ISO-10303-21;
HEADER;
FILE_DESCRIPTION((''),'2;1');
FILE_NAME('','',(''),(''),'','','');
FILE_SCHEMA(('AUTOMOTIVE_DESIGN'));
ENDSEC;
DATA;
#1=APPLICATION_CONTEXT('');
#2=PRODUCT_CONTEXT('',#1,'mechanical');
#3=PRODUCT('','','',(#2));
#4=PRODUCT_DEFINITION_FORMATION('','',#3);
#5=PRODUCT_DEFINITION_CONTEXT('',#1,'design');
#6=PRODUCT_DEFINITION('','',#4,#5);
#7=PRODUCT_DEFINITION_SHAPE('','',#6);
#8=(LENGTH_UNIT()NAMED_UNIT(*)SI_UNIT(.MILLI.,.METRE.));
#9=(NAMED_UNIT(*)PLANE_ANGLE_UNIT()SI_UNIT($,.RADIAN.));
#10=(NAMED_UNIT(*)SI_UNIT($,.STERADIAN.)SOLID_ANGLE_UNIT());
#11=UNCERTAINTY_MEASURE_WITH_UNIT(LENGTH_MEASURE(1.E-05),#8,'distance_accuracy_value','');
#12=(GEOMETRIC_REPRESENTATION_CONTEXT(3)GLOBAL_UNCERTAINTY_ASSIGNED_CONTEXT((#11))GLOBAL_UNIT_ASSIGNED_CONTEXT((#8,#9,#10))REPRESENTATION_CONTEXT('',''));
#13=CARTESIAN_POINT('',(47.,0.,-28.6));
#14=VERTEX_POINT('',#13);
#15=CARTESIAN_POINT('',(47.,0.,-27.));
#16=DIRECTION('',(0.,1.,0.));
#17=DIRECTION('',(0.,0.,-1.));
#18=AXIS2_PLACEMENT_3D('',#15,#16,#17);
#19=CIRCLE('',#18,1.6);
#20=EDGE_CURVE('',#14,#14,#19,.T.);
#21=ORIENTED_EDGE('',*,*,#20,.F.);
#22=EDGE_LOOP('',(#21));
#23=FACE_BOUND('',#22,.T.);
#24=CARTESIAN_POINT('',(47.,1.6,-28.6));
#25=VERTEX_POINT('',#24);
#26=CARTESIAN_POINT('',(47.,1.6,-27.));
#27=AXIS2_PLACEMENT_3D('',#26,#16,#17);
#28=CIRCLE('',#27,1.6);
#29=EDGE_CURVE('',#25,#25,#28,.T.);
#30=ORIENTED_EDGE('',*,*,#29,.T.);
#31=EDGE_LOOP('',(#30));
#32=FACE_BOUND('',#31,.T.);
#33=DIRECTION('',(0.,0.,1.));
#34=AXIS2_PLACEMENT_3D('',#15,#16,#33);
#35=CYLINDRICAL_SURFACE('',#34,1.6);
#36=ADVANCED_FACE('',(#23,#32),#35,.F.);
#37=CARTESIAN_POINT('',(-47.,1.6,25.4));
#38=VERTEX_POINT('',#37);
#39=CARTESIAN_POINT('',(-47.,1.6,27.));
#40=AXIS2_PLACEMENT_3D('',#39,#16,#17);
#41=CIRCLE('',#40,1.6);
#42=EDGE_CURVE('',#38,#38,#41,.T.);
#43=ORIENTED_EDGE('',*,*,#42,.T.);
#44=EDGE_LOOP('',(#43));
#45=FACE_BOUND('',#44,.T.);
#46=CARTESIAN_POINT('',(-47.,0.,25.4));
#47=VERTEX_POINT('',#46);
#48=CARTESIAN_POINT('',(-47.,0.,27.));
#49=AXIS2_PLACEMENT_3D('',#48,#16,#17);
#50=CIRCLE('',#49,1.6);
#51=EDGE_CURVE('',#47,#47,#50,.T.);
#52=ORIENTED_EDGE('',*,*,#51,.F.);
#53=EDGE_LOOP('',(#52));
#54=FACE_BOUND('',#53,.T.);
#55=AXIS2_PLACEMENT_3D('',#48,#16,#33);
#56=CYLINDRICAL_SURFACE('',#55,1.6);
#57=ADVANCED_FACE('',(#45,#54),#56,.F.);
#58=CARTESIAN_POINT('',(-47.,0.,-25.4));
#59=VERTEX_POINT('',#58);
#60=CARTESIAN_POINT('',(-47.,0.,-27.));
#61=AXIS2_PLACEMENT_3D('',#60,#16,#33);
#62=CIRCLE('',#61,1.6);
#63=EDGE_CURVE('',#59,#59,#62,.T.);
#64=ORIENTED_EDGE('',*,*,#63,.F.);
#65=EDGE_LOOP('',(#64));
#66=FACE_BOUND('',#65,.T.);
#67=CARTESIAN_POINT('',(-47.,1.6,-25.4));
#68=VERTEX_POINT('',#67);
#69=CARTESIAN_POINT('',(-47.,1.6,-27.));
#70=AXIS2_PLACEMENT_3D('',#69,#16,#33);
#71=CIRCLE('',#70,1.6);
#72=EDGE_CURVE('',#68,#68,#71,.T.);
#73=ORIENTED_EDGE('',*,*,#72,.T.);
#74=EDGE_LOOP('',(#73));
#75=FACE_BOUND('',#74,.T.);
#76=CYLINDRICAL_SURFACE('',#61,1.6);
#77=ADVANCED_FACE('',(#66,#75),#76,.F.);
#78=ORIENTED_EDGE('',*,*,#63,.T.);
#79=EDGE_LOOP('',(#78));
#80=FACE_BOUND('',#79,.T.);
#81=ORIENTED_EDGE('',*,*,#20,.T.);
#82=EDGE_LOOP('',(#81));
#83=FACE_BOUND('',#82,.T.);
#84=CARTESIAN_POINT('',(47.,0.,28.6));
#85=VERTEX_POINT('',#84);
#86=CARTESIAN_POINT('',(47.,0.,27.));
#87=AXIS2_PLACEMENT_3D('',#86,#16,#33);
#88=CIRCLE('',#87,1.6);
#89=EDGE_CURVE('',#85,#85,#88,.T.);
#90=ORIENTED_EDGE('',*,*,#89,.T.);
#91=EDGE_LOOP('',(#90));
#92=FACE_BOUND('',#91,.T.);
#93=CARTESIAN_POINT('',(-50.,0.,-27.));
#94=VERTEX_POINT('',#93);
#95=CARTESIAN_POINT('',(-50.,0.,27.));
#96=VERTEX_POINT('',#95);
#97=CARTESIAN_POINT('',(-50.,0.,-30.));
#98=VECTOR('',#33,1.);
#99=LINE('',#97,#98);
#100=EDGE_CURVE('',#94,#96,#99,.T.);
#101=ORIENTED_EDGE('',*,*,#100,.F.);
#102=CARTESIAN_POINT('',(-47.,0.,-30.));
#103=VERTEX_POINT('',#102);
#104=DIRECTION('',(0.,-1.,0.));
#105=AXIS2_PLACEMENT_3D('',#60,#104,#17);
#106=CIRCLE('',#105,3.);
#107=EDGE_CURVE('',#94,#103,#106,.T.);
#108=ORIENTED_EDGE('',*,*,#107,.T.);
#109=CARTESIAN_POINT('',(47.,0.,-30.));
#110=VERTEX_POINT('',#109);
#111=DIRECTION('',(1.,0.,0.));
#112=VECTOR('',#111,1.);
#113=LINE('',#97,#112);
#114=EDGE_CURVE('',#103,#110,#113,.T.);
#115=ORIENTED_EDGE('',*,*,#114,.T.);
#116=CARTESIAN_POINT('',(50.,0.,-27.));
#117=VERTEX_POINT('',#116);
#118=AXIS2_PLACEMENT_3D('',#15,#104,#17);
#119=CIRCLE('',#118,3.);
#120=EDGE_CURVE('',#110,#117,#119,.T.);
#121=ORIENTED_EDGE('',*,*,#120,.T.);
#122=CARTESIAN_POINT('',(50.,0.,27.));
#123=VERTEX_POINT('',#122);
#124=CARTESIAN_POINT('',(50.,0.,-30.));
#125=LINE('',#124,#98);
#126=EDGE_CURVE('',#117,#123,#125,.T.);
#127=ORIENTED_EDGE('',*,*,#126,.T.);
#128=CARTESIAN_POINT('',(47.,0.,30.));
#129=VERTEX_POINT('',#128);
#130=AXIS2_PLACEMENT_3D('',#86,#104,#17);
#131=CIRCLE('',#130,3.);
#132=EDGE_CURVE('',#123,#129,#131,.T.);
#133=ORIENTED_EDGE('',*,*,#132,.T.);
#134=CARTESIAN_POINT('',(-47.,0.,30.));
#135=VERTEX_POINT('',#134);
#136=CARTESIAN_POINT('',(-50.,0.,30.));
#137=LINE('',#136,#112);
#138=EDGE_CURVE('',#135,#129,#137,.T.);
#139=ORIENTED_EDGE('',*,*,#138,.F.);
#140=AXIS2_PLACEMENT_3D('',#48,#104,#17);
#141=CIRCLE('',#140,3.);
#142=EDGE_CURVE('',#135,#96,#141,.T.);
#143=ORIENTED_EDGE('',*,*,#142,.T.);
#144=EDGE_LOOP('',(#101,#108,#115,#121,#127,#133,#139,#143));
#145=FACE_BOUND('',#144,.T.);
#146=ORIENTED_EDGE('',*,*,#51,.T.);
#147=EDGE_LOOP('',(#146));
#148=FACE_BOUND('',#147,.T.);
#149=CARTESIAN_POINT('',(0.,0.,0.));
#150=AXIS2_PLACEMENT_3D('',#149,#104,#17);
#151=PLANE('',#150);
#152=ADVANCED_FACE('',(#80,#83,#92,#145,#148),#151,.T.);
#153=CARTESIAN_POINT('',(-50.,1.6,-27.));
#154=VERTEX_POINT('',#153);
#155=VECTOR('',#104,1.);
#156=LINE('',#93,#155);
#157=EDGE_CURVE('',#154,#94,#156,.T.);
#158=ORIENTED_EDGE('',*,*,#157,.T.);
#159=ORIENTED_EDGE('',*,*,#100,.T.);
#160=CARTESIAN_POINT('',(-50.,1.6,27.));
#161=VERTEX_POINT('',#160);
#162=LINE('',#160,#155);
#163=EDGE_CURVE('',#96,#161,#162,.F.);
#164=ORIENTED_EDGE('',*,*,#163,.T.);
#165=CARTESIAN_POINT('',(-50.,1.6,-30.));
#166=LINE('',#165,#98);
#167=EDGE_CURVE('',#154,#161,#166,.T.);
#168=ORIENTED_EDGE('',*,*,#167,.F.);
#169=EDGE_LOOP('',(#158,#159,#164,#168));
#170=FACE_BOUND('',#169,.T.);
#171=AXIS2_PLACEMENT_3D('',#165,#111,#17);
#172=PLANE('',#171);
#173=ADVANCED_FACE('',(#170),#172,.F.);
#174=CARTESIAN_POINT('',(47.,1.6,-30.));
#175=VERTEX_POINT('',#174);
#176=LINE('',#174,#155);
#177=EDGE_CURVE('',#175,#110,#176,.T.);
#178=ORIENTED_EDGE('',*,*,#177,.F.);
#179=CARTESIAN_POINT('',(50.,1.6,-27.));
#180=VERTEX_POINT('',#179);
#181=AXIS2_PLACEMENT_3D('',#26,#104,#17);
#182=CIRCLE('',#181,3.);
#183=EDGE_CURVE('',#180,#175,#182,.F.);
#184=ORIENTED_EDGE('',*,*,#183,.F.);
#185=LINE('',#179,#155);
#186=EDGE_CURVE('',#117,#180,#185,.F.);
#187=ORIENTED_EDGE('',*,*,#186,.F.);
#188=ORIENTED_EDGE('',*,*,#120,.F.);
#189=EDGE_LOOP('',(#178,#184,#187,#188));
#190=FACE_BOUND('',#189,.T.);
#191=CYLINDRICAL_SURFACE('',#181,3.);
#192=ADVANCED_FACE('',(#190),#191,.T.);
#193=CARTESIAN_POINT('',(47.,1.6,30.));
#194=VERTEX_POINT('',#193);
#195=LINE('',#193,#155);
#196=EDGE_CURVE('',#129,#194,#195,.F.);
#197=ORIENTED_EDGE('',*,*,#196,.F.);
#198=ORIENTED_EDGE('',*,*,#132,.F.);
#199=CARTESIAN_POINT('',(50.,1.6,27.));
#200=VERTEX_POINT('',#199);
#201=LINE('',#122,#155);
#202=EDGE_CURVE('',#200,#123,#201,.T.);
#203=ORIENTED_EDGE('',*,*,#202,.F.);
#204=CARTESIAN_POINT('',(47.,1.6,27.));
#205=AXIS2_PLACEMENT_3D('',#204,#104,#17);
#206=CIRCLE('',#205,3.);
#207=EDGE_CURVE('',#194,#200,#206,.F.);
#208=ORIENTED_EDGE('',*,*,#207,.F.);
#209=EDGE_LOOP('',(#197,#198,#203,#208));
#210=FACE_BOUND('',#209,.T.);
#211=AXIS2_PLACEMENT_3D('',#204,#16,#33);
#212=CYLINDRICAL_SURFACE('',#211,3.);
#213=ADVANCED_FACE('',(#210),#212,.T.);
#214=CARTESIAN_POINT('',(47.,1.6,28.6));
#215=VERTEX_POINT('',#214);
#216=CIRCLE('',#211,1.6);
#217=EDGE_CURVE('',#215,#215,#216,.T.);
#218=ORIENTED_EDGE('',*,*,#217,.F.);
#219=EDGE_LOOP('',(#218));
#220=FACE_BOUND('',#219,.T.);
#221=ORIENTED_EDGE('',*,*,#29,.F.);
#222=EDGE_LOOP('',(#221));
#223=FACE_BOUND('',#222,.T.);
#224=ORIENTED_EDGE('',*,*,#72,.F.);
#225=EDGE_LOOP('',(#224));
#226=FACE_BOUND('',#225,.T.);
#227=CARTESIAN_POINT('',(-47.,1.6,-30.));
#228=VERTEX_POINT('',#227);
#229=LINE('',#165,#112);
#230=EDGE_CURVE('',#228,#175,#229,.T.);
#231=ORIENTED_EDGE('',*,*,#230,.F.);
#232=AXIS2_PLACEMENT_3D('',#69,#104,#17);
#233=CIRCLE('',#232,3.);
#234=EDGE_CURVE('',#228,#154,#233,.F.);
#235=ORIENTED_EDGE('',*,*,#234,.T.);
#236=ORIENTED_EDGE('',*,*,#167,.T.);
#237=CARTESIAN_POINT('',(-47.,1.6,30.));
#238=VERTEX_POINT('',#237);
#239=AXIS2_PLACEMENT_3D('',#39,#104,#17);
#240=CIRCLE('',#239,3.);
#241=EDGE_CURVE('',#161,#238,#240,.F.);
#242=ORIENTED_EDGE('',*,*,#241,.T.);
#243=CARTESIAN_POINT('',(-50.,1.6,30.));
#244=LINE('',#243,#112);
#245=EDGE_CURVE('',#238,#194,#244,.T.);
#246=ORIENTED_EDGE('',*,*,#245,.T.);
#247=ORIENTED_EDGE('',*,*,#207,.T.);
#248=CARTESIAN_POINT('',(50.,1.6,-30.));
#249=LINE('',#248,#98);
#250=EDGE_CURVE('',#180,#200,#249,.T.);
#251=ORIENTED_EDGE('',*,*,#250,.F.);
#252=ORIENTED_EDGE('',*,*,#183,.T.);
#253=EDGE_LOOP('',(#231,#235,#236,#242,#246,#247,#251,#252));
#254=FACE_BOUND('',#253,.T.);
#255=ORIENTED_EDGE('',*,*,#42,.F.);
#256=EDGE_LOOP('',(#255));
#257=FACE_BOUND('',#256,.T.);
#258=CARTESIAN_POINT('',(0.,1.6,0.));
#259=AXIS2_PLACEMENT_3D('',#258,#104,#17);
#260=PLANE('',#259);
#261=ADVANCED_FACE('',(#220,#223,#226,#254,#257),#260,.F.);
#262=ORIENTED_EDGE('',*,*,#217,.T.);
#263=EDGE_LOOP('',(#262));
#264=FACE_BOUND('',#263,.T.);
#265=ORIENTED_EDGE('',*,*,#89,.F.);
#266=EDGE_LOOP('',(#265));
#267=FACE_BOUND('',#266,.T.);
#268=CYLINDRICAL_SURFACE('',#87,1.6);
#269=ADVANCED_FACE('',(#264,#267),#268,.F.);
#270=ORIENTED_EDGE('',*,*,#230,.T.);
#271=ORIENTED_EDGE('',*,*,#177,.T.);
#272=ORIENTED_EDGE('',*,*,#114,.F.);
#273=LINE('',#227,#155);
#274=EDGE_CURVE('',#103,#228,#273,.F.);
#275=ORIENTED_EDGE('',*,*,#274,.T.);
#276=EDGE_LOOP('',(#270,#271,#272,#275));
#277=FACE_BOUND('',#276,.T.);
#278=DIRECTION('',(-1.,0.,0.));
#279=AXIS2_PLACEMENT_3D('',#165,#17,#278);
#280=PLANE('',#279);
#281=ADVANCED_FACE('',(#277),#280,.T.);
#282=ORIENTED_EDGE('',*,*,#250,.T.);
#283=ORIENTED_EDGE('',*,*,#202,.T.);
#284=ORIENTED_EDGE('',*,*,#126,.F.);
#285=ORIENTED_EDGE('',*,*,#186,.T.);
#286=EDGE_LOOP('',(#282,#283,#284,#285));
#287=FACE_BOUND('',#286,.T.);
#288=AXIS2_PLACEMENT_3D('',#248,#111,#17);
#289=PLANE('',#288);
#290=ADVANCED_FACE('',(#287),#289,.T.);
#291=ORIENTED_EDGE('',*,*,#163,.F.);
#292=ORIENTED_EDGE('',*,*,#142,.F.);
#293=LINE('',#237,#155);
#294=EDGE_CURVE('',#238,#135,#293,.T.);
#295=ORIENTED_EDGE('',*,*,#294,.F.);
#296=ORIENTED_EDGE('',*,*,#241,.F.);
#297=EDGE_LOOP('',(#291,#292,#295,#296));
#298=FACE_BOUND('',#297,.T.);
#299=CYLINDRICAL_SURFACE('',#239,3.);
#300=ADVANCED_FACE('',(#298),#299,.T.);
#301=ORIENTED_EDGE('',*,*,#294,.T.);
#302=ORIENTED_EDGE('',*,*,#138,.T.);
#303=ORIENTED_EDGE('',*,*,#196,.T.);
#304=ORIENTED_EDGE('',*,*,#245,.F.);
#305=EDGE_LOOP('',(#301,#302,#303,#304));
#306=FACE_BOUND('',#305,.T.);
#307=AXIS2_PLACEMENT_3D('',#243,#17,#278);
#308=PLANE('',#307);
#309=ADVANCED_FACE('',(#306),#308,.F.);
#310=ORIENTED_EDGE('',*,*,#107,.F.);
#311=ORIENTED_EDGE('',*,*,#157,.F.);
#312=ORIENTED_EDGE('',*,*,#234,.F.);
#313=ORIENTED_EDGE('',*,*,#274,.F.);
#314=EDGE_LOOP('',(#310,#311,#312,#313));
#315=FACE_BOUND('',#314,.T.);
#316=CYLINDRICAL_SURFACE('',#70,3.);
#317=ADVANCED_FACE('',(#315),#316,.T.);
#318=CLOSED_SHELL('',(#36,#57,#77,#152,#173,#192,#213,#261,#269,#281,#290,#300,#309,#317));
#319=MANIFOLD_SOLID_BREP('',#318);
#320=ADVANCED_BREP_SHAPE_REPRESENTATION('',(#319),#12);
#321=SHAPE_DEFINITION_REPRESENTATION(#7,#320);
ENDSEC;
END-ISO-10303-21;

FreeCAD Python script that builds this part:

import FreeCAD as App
import Part
import Sketcher

V = App.Vector
Q = App.Units.Quantity


def edges_at(feature, points):
    """Names of the edges that pass closest to the given points."""
    edges = feature.Shape.Edges
    near = lambda p: min(range(len(edges)), key=lambda i: edges[i].distToShape(Part.Vertex(*p))[0])
    return sorted({f"Edge{near(p) + 1}" for p in points})


def add_polygon(sketch, points):
    """Adds a closed chain of lines whose ends are joined by coincident constraints."""
    first, n = sketch.GeometryCount, len(points)
    for a, b in zip(points, points[1:] + points[:1]):
        sketch.addGeometry(Part.LineSegment(App.Vector(*a, 0), App.Vector(*b, 0)), False)
    for i in range(n):
        sketch.addConstraint(Sketcher.Constraint("Coincident", first + i, 2, first + (i + 1) % n, 1))

doc = App.newDocument("Part")
body = doc.addObject("PartDesign::Body", "Body")

# Sketch on XZ plane
sketch1 = body.newObject("Sketcher::SketchObject", "Sketch")
sketch1.AttachmentSupport = (doc.getObject("XZ_Plane"), [""])
sketch1.MapMode = "FlatFace"
add_polygon(sketch1, [(-50, -30), (-50, 30), (50, 30), (50, -30)])  # lines 0-3
sketch1.addConstraint([
    Sketcher.Constraint("Vertical", 0),
    Sketcher.Constraint("Horizontal", 1),
    Sketcher.Constraint("Vertical", 2),
    Sketcher.Constraint("Horizontal", 3),
    Sketcher.Constraint("Symmetric", 0, 2, 2, 2, -1, 1),
    Sketcher.Constraint("DistanceX", 1, 1, 1, 2, Q("100 mm")),
    Sketcher.Constraint("DistanceY", 0, 1, 0, 2, Q("60 mm")),
])
pad1 = body.newObject("PartDesign::Pad", "Pad")
pad1.Profile = sketch1
pad1.Length = 1.6
pad1.Reversed = True

# Sketch on XZ plane
sketch2 = body.newObject("Sketcher::SketchObject", "Sketch001")
sketch2.AttachmentSupport = (doc.getObject("XZ_Plane"), [""])
sketch2.MapMode = "FlatFace"
sketch2.AttachmentOffset = App.Placement(V(0, 0, -1.6), App.Rotation())
sketch2.addGeometry([
    Part.Circle(V(-47, -27, 0), V(0, 0, 1), 1.6),
    Part.Circle(V(47, -27, 0), V(0, 0, 1), 1.6),
    Part.Circle(V(47, 27, 0), V(0, 0, 1), 1.6),
    Part.Circle(V(-47, 27, 0), V(0, 0, 1), 1.6),
], False)
sketch2.addConstraint([
    Sketcher.Constraint("Equal", 0, 1),
    Sketcher.Constraint("Equal", 1, 2),
    Sketcher.Constraint("Equal", 2, 3),
    Sketcher.Constraint("Symmetric", 0, 3, 2, 3, -1, 1),
    Sketcher.Constraint("Symmetric", 1, 3, 3, 3, -1, 1),
    Sketcher.Constraint("Symmetric", 0, 3, 1, 3, -2),
    Sketcher.Constraint("Diameter", 0, Q("3.2 mm")),
    Sketcher.Constraint("DistanceX", 0, 3, -1, 1, Q("47 mm")),
    Sketcher.Constraint("DistanceY", 0, 3, -1, 1, Q("27 mm")),
])
pocket1 = body.newObject("PartDesign::Pocket", "Pocket")
pocket1.Profile = sketch2
pocket1.Type = "ThroughAll"
pocket1.Reversed = True
doc.recompute()

fillet = body.newObject("PartDesign::Fillet", "Fillet")
fillet.Base = (pocket1, edges_at(pocket1, [
    (-50, 0.8, 30),
    (-50, 0.8, -30),
    (50, 0.8, -30),
    (50, 0.8, 30),
]))
fillet.Radius = 3

doc.recompute()
